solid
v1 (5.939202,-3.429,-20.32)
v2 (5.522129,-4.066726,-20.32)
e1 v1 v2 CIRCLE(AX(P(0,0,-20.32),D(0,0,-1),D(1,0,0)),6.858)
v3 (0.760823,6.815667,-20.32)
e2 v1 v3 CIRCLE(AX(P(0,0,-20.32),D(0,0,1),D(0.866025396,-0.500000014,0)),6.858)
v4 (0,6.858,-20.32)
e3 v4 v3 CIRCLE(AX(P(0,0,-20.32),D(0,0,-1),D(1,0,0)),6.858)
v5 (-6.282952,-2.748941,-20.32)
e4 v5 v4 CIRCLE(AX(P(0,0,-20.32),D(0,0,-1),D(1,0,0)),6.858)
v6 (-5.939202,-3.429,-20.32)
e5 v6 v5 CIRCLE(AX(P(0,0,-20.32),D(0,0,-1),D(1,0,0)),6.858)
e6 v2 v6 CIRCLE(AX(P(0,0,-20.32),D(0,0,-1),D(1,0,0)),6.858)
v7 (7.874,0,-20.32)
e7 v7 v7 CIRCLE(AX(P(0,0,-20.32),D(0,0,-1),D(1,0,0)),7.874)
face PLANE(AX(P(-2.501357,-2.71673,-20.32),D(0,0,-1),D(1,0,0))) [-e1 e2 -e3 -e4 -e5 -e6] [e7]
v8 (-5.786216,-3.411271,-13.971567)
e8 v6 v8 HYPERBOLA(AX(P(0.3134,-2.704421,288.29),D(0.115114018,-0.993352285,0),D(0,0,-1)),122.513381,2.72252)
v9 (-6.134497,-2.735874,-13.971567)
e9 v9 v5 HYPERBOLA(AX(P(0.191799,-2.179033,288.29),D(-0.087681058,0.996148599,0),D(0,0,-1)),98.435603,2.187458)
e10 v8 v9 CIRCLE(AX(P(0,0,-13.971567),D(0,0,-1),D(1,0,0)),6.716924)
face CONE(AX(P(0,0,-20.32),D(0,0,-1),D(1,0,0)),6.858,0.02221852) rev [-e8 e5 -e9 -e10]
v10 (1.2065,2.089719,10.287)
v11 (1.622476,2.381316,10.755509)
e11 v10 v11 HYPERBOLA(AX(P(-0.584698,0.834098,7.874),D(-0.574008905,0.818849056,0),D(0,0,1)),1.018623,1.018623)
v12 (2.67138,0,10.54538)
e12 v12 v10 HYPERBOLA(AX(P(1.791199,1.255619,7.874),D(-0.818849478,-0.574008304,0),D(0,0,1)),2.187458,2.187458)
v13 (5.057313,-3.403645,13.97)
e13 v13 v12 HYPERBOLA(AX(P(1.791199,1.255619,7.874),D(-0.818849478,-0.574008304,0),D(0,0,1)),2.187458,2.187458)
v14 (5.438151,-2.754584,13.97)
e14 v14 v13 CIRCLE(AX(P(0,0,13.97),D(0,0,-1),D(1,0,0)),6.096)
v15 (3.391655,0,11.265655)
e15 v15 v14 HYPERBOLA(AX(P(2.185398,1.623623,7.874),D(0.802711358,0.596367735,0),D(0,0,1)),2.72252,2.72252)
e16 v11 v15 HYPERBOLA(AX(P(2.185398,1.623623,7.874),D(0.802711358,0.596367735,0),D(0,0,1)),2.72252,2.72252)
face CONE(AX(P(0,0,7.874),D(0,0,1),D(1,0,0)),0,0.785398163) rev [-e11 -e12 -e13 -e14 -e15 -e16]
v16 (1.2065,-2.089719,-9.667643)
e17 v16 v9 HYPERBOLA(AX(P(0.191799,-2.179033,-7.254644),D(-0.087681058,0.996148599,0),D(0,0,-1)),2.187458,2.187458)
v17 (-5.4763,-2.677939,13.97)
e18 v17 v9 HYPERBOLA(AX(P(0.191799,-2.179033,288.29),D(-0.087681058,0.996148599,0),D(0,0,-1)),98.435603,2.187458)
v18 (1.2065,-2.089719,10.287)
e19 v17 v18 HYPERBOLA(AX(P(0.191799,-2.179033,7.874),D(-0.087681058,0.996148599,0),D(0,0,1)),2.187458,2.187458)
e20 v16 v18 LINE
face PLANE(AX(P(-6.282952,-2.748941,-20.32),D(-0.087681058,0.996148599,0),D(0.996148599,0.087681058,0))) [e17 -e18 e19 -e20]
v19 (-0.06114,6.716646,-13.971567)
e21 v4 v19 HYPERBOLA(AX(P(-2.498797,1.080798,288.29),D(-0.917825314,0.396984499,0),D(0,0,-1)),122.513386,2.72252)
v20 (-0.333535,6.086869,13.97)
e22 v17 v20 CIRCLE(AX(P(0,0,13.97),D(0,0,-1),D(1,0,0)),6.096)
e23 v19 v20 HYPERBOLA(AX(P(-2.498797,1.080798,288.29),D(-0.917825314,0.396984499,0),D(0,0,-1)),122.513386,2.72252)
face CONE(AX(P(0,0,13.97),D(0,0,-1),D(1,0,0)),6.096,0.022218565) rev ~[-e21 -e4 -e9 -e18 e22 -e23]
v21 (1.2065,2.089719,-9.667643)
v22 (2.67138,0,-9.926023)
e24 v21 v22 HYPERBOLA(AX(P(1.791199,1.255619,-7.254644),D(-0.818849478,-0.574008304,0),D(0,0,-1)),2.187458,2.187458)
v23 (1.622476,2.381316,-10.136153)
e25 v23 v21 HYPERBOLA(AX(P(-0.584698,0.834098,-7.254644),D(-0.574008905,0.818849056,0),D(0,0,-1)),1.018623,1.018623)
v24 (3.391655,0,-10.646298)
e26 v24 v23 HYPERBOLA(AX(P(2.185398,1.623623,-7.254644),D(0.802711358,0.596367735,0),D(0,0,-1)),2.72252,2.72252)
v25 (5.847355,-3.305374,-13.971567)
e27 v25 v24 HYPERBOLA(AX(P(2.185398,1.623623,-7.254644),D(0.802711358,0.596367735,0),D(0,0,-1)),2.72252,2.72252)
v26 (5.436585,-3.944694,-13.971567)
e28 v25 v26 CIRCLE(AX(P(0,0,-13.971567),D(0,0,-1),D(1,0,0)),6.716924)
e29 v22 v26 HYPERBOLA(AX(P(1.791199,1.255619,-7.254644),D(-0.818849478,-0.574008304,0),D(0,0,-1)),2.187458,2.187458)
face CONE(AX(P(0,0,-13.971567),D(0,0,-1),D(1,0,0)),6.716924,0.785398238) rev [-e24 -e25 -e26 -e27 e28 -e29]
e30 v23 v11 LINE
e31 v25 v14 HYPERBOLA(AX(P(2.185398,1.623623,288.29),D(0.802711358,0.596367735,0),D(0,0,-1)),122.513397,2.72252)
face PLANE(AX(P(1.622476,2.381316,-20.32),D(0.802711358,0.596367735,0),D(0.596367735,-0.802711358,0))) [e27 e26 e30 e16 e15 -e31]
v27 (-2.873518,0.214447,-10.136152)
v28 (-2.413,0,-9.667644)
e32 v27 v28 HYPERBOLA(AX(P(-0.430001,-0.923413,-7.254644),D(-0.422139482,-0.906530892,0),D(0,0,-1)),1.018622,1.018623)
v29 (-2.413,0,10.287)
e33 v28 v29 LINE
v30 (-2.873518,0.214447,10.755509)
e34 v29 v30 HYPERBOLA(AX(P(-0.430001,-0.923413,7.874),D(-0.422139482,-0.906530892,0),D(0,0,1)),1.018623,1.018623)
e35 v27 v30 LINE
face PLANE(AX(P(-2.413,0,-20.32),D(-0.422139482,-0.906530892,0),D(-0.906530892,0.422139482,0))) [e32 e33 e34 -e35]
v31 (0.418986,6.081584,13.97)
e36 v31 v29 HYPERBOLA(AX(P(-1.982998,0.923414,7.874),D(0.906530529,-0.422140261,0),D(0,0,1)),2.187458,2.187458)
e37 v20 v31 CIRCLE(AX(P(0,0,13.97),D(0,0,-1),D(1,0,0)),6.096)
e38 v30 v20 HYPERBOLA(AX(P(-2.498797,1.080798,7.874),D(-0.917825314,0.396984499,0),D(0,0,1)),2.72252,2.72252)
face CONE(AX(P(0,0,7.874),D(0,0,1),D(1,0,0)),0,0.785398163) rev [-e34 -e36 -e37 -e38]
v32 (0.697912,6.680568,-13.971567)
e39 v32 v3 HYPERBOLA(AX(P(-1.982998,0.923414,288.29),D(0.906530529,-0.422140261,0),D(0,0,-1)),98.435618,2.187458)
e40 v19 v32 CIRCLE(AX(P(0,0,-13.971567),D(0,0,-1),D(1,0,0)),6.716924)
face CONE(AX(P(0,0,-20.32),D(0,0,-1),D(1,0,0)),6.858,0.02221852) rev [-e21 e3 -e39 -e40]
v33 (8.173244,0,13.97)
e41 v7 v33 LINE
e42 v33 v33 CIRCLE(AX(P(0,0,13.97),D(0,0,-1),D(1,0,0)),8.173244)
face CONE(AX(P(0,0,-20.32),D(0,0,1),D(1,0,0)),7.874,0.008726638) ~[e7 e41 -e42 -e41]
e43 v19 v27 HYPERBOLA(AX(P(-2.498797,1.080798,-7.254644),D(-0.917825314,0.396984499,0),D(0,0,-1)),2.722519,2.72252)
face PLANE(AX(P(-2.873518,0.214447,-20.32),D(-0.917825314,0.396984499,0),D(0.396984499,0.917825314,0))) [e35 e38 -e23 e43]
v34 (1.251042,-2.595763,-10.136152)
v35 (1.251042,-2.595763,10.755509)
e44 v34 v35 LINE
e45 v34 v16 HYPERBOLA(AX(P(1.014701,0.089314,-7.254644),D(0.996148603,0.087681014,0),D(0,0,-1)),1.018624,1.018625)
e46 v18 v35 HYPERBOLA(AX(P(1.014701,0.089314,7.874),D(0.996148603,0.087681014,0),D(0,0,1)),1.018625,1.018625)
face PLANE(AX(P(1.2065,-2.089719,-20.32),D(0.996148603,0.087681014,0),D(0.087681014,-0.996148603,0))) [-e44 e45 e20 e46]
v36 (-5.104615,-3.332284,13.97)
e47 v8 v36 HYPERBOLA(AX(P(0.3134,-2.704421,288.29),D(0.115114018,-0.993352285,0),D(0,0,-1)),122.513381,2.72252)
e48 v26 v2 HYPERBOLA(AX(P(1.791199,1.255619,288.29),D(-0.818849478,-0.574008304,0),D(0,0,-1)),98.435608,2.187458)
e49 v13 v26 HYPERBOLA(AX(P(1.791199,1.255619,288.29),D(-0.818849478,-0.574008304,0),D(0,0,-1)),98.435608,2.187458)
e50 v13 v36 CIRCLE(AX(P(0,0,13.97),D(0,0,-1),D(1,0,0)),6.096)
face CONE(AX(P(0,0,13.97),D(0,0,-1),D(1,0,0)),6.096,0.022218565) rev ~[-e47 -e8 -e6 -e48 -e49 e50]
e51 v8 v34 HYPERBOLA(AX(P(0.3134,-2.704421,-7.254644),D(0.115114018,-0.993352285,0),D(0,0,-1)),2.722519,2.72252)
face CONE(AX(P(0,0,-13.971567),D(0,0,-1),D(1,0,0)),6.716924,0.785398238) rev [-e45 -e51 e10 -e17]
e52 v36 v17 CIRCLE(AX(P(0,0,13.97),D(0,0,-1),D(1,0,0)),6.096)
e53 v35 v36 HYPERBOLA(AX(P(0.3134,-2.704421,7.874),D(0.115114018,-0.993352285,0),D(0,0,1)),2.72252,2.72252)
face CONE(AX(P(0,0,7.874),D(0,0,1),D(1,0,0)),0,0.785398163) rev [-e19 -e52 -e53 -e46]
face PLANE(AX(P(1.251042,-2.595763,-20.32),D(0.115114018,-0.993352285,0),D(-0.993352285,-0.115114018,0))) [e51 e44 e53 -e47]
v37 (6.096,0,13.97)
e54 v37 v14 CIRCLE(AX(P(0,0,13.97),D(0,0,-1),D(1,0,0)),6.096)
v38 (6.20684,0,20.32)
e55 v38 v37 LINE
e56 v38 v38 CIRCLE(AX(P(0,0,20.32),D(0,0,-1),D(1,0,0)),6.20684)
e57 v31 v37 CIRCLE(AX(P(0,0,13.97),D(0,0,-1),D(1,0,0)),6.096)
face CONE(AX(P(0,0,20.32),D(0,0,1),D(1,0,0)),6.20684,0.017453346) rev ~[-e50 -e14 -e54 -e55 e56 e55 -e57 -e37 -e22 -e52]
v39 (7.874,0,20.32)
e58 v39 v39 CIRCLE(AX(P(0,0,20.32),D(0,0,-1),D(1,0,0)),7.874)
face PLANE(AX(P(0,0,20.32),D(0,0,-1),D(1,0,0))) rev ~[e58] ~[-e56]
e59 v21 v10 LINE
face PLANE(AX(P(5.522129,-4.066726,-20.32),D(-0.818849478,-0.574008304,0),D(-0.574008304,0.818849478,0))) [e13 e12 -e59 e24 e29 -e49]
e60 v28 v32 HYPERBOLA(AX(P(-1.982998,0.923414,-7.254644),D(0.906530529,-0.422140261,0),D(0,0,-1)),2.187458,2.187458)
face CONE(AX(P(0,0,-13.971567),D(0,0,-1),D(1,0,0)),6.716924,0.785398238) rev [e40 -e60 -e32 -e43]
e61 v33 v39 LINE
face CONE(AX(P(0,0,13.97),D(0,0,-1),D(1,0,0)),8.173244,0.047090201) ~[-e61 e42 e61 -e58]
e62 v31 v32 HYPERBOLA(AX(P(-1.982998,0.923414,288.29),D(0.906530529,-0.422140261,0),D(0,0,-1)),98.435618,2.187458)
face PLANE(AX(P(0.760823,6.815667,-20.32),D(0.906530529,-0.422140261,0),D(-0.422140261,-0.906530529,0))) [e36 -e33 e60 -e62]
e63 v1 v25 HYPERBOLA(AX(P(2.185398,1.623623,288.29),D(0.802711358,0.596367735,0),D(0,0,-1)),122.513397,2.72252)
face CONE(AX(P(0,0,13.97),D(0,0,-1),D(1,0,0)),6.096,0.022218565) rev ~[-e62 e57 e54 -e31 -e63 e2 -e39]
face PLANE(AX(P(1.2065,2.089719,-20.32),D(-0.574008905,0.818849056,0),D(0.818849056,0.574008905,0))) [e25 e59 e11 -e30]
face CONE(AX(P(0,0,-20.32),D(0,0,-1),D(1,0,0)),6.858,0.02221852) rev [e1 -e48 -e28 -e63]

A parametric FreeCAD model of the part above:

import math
import FreeCAD as App
import Part
import Sketcher

V = App.Vector
Q = App.Units.Quantity

doc = App.newDocument("Part")
body = doc.addObject("PartDesign::Body", "Body")

sketch1 = doc.addObject("Sketcher::SketchObject", "Sketch")
body.addObject(sketch1)
sketch1.AttachmentSupport = (doc.XZ_Plane, [""])
sketch1.MapMode = "FlatFace"
sketch1.addGeometry(Part.LineSegment(V(7.874, 20.32, 0), V(6.20684, 20.32, 0)), False)
sketch1.addGeometry(Part.LineSegment(V(6.20684, 20.32, 0), V(6.096, 13.97, 0)), False)
sketch1.addGeometry(Part.LineSegment(V(6.096, 13.97, 0), V(6.858, -20.32, 0)), False)
sketch1.addGeometry(Part.LineSegment(V(6.858, -20.32, 0), V(7.874, -20.32, 0)), False)
sketch1.addGeometry(Part.LineSegment(V(7.874, -20.32, 0), V(8.173244, 13.97, 0)), False)
sketch1.addGeometry(Part.LineSegment(V(8.173244, 13.97, 0), V(7.874, 20.32, 0)), False)
sketch1.addConstraint(Sketcher.Constraint("Coincident", 0, 2, 1, 1))
sketch1.addConstraint(Sketcher.Constraint("Coincident", 1, 2, 2, 1))
sketch1.addConstraint(Sketcher.Constraint("Coincident", 2, 2, 3, 1))
sketch1.addConstraint(Sketcher.Constraint("Coincident", 3, 2, 4, 1))
sketch1.addConstraint(Sketcher.Constraint("Coincident", 4, 2, 5, 1))
sketch1.addConstraint(Sketcher.Constraint("Coincident", 5, 2, 0, 1))
sketch1.addConstraint(Sketcher.Constraint("Horizontal", 0))
sketch1.addConstraint(Sketcher.Constraint("Horizontal", 3))
sketch1.addConstraint(Sketcher.Constraint("Symmetric", 3, 2, 5, 2, -1))
sketch1.addConstraint(Sketcher.Constraint("Horizontal", 1, 2, 4, 2))
sketch1.addConstraint(Sketcher.Constraint("Angle", 1, Q("-91.000003 deg")))
sketch1.addConstraint(Sketcher.Constraint("DistanceX", 3, 1, 3, 2, Q("0.04 in")))
sketch1.addConstraint(Sketcher.Constraint("DistanceY", -1, 1, 0, 2, Q("0.8 in")))
sketch1.addConstraint(Sketcher.Constraint("Angle", 4, Q("89.5 deg")))
sketch1.addConstraint(Sketcher.Constraint("DistanceX", -1, 1, 1, 2, Q("0.24 in")))
sketch1.addConstraint(Sketcher.Constraint("DistanceY", -1, 1, 1, 2, Q("0.55 in")))
sketch1.addConstraint(Sketcher.Constraint("DistanceX", -1, 1, 2, 2, Q("0.27 in")))
revolution = doc.addObject("PartDesign::Revolution", "Revolution")
body.addObject(revolution)
revolution.Profile = sketch1
revolution.ReferenceAxis = (sketch1, ["V_Axis"])
revolution.Angle = 360

sketch2 = doc.addObject("Sketcher::SketchObject", "Sketch001")
body.addObject(sketch2)
sketch2.AttachmentSupport = (doc.XY_Plane, [""])
sketch2.MapMode = "FlatFace"
sketch2.AttachmentOffset = App.Placement(V(0, 0, -0.8 * 25.4), App.Rotation())
sketch2.addGeometry(Part.LineSegment(V(1.251042, -2.595763, 0), V(-5.939202, -3.429, 0)), False)
sketch2.addGeometry(Part.ArcOfCircle(Part.Circle(V(-0.000355, -0.000179, 0), V(0, 0, 1), 6.857603), math.radians(-156.369657), math.radians(-149.999809)), False)
sketch2.addGeometry(Part.LineSegment(V(-6.282952, -2.748941, 0), V(1.2065, -2.089719, 0)), False)
sketch2.addGeometry(Part.LineSegment(V(1.2065, -2.089719, 0), V(1.251042, -2.595763, 0)), False)
sketch2.addGeometry(Part.ArcOfCircle(Part.Circle(V(-0.00002, -0.000416, 0), V(0, 0, 1), 6.858416), math.radians(83.630742), math.radians(89.99983)), False)
sketch2.addGeometry(Part.LineSegment(V(0.760823, 6.815667, 0), V(-2.413, 0, 0)), False)
sketch2.addGeometry(Part.LineSegment(V(-2.413, 0, 0), V(-2.873518, 0.214447, 0)), False)
sketch2.addGeometry(Part.LineSegment(V(-2.873518, 0.214447, 0), V(0, 6.858, 0)), False)
sketch2.addGeometry(Part.LineSegment(V(1.622476, 2.381316, 0), V(5.939202, -3.429, 0)), False)
sketch2.addGeometry(Part.ArcOfCircle(Part.Circle(V(0.000108, -0.000076, 0), V(0, 0, 1), 6.857868), math.radians(-36.369499), math.radians(-29.999898)), False)
sketch2.addGeometry(Part.LineSegment(V(5.522129, -4.066726, 0), V(1.2065, 2.089719, 0)), False)
sketch2.addGeometry(Part.LineSegment(V(1.2065, 2.089719, 0), V(1.622476, 2.381316, 0)), False)
sketch2.addConstraint(Sketcher.Constraint("Coincident", 0, 2, 1, 2))
sketch2.addConstraint(Sketcher.Constraint("Coincident", 1, 1, 2, 1))
sketch2.addConstraint(Sketcher.Constraint("Coincident", 2, 2, 3, 1))
sketch2.addConstraint(Sketcher.Constraint("Coincident", 3, 2, 0, 1))
sketch2.addConstraint(Sketcher.Constraint("Coincident", 4, 1, 5, 1))
sketch2.addConstraint(Sketcher.Constraint("Coincident", 5, 2, 6, 1))
sketch2.addConstraint(Sketcher.Constraint("Coincident", 6, 2, 7, 1))
sketch2.addConstraint(Sketcher.Constraint("Coincident", 7, 2, 4, 2))
sketch2.addConstraint(Sketcher.Constraint("Coincident", 8, 2, 9, 2))
sketch2.addConstraint(Sketcher.Constraint("Coincident", 9, 1, 10, 1))
sketch2.addConstraint(Sketcher.Constraint("Coincident", 10, 2, 11, 1))
sketch2.addConstraint(Sketcher.Constraint("Coincident", 11, 2, 8, 1))
sketch2.addConstraint(Sketcher.Constraint("PointOnObject", 5, 2, -1))
sketch2.addConstraint(Sketcher.Constraint("PointOnObject", 7, 2, -2))
sketch2.addConstraint(Sketcher.Constraint("Distance", 3, Q("0.02 in")))
sketch2.addConstraint(Sketcher.Constraint("Distance", 6, Q("0.02 in")))
sketch2.addConstraint(Sketcher.Constraint("Distance", 11, Q("0.02 in")))
sketch2.addConstraint(Sketcher.Constraint("DistanceY", -1, 1, 7, 2, Q("0.27 in")))
sketch2.addConstraint(Sketcher.Constraint("DistanceY", 0, 2, -1, 1, Q("0.135 in")))
sketch2.addConstraint(Sketcher.Constraint("DistanceX", 5, 2, -1, 1, Q("0.095 in")))
sketch2.addConstraint(Sketcher.Constraint("DistanceY", 8, 2, -1, 1, Q("0.135 in")))
sketch2.addConstraint(Sketcher.Constraint("Radius", 9, Q("6.857868 mm")))
sketch2.addConstraint(Sketcher.Constraint("DistanceX", -1, 1, 2, 2, Q("0.0475 in")))
sketch2.addConstraint(Sketcher.Constraint("DistanceX", -1, 1, 10, 2, Q("0.0475 in")))
sketch2.addConstraint(Sketcher.Constraint("Radius", 1, Q("6.857603 mm")))
sketch2.addConstraint(Sketcher.Constraint("Radius", 4, Q("6.858416 mm")))
sketch2.addConstraint(Sketcher.Constraint("DistanceX", 4, 1, 3, 2, Q("0.0193 in")))
sketch2.addConstraint(Sketcher.Constraint("DistanceX", 2, 2, 8, 2, Q("4.732702 mm")))
sketch2.addConstraint(Sketcher.Constraint("Distance", 2, Q("7.518408 mm")))
sketch2.addConstraint(Sketcher.Constraint("Distance", 5, Q("7.518409 mm")))
sketch2.addConstraint(Sketcher.Constraint("Distance", 10, Q("7.518409 mm")))
sketch2.addConstraint(Sketcher.Constraint("DistanceY", 1, 3, -1, 1, Q("0.000179 mm")))
sketch2.addConstraint(Sketcher.Constraint("DistanceY", 1, 1, -1, 1, Q("2.748941 mm")))
sketch2.addConstraint(Sketcher.Constraint("DistanceY", 2, 2, -1, 1, Q("2.089719 mm")))
sketch2.addConstraint(Sketcher.Constraint("DistanceX", -1, 1, 9, 1, Q("5.522129 mm")))
sketch2.addConstraint(Sketcher.Constraint("DistanceY", -1, 1, 10, 2, Q("2.089719 mm")))
sketch2.addConstraint(Sketcher.Constraint("DistanceX", 0, 2, 4, 3, Q("5.939182 mm")))
sketch2.addConstraint(Sketcher.Constraint("DistanceY", 1, 1, 6, 2, Q("2.963388 mm")))
sketch2.addConstraint(Sketcher.Constraint("DistanceX", 9, 3, 11, 2, Q("1.622368 mm")))
pad1 = doc.addObject("PartDesign::Pad", "Pad")
body.addObject(pad1)
pad1.Profile = sketch2
pad1.Length = Q("1.35 in")

sketch3 = doc.addObject("Sketcher::SketchObject", "Sketch002")
body.addObject(sketch3)
sketch3.AttachmentSupport = (doc.XZ_Plane, [""])
sketch3.MapMode = "FlatFace"
sketch3.addGeometry(Part.LineSegment(V(0, 7.874, 0), V(6.096, 13.97, 0)), False)
sketch3.addGeometry(Part.LineSegment(V(6.096, 13.97, 0), V(0, 13.97, 0)), False)
sketch3.addGeometry(Part.LineSegment(V(0, 13.97, 0), V(0, 7.874, 0)), False)
sketch3.addGeometry(Part.LineSegment(V(6.858, -20.32, 0), V(6.716924, -13.971567, 0)), False)
sketch3.addGeometry(Part.LineSegment(V(6.716924, -13.971567, 0), V(0, -7.254644, 0)), False)
sketch3.addGeometry(Part.LineSegment(V(0, -7.254644, 0), V(0, -20.4724, 0)), False)
sketch3.addGeometry(Part.LineSegment(V(0, -20.4724, 0), V(6.858, -20.32, 0)), False)
sketch3.addConstraint(Sketcher.Constraint("Coincident", 0, 2, 1, 1))
sketch3.addConstraint(Sketcher.Constraint("Coincident", 1, 2, 2, 1))
sketch3.addConstraint(Sketcher.Constraint("Coincident", 2, 2, 0, 1))
sketch3.addConstraint(Sketcher.Constraint("Coincident", 3, 2, 4, 1))
sketch3.addConstraint(Sketcher.Constraint("Coincident", 4, 2, 5, 1))
sketch3.addConstraint(Sketcher.Constraint("Coincident", 5, 2, 6, 1))
sketch3.addConstraint(Sketcher.Constraint("Coincident", 6, 2, 3, 1))
sketch3.addConstraint(Sketcher.Constraint("Horizontal", 1))
sketch3.addConstraint(Sketcher.Constraint("Vertical", 2))
sketch3.addConstraint(Sketcher.Constraint("Vertical", 5))
sketch3.addConstraint(Sketcher.Constraint("PointOnObject", 1, 2, -2))
sketch3.addConstraint(Sketcher.Constraint("PointOnObject", 4, 2, -2))
sketch3.addConstraint(Sketcher.Constraint("Perpendicular", 0, 4))
sketch3.addConstraint(Sketcher.Constraint("Perpendicular", 3, 6))
sketch3.addConstraint(Sketcher.Constraint("Equal", 1, 2))
sketch3.addConstraint(Sketcher.Constraint("DistanceX", 1, 2, 1, 1, Q("0.24 in")))
sketch3.addConstraint(Sketcher.Constraint("DistanceY", 6, 2, -1, 1, Q("0.8 in")))
sketch3.addConstraint(Sketcher.Constraint("Distance", 3, Q("0.25 in")))
sketch3.addConstraint(Sketcher.Constraint("DistanceY", -1, 1, 0, 2, Q("0.55 in")))
sketch3.addConstraint(Sketcher.Constraint("DistanceX", -1, 1, 6, 2, Q("0.27 in")))
sketch3.addConstraint(Sketcher.Constraint("DistanceY", 5, 2, -1, 1, Q("0.806 in")))
groove = doc.addObject("PartDesign::Groove", "Groove")
body.addObject(groove)
groove.Profile = sketch3
groove.ReferenceAxis = (sketch3, ["V_Axis"])
groove.Angle = 360

doc.recompute()
